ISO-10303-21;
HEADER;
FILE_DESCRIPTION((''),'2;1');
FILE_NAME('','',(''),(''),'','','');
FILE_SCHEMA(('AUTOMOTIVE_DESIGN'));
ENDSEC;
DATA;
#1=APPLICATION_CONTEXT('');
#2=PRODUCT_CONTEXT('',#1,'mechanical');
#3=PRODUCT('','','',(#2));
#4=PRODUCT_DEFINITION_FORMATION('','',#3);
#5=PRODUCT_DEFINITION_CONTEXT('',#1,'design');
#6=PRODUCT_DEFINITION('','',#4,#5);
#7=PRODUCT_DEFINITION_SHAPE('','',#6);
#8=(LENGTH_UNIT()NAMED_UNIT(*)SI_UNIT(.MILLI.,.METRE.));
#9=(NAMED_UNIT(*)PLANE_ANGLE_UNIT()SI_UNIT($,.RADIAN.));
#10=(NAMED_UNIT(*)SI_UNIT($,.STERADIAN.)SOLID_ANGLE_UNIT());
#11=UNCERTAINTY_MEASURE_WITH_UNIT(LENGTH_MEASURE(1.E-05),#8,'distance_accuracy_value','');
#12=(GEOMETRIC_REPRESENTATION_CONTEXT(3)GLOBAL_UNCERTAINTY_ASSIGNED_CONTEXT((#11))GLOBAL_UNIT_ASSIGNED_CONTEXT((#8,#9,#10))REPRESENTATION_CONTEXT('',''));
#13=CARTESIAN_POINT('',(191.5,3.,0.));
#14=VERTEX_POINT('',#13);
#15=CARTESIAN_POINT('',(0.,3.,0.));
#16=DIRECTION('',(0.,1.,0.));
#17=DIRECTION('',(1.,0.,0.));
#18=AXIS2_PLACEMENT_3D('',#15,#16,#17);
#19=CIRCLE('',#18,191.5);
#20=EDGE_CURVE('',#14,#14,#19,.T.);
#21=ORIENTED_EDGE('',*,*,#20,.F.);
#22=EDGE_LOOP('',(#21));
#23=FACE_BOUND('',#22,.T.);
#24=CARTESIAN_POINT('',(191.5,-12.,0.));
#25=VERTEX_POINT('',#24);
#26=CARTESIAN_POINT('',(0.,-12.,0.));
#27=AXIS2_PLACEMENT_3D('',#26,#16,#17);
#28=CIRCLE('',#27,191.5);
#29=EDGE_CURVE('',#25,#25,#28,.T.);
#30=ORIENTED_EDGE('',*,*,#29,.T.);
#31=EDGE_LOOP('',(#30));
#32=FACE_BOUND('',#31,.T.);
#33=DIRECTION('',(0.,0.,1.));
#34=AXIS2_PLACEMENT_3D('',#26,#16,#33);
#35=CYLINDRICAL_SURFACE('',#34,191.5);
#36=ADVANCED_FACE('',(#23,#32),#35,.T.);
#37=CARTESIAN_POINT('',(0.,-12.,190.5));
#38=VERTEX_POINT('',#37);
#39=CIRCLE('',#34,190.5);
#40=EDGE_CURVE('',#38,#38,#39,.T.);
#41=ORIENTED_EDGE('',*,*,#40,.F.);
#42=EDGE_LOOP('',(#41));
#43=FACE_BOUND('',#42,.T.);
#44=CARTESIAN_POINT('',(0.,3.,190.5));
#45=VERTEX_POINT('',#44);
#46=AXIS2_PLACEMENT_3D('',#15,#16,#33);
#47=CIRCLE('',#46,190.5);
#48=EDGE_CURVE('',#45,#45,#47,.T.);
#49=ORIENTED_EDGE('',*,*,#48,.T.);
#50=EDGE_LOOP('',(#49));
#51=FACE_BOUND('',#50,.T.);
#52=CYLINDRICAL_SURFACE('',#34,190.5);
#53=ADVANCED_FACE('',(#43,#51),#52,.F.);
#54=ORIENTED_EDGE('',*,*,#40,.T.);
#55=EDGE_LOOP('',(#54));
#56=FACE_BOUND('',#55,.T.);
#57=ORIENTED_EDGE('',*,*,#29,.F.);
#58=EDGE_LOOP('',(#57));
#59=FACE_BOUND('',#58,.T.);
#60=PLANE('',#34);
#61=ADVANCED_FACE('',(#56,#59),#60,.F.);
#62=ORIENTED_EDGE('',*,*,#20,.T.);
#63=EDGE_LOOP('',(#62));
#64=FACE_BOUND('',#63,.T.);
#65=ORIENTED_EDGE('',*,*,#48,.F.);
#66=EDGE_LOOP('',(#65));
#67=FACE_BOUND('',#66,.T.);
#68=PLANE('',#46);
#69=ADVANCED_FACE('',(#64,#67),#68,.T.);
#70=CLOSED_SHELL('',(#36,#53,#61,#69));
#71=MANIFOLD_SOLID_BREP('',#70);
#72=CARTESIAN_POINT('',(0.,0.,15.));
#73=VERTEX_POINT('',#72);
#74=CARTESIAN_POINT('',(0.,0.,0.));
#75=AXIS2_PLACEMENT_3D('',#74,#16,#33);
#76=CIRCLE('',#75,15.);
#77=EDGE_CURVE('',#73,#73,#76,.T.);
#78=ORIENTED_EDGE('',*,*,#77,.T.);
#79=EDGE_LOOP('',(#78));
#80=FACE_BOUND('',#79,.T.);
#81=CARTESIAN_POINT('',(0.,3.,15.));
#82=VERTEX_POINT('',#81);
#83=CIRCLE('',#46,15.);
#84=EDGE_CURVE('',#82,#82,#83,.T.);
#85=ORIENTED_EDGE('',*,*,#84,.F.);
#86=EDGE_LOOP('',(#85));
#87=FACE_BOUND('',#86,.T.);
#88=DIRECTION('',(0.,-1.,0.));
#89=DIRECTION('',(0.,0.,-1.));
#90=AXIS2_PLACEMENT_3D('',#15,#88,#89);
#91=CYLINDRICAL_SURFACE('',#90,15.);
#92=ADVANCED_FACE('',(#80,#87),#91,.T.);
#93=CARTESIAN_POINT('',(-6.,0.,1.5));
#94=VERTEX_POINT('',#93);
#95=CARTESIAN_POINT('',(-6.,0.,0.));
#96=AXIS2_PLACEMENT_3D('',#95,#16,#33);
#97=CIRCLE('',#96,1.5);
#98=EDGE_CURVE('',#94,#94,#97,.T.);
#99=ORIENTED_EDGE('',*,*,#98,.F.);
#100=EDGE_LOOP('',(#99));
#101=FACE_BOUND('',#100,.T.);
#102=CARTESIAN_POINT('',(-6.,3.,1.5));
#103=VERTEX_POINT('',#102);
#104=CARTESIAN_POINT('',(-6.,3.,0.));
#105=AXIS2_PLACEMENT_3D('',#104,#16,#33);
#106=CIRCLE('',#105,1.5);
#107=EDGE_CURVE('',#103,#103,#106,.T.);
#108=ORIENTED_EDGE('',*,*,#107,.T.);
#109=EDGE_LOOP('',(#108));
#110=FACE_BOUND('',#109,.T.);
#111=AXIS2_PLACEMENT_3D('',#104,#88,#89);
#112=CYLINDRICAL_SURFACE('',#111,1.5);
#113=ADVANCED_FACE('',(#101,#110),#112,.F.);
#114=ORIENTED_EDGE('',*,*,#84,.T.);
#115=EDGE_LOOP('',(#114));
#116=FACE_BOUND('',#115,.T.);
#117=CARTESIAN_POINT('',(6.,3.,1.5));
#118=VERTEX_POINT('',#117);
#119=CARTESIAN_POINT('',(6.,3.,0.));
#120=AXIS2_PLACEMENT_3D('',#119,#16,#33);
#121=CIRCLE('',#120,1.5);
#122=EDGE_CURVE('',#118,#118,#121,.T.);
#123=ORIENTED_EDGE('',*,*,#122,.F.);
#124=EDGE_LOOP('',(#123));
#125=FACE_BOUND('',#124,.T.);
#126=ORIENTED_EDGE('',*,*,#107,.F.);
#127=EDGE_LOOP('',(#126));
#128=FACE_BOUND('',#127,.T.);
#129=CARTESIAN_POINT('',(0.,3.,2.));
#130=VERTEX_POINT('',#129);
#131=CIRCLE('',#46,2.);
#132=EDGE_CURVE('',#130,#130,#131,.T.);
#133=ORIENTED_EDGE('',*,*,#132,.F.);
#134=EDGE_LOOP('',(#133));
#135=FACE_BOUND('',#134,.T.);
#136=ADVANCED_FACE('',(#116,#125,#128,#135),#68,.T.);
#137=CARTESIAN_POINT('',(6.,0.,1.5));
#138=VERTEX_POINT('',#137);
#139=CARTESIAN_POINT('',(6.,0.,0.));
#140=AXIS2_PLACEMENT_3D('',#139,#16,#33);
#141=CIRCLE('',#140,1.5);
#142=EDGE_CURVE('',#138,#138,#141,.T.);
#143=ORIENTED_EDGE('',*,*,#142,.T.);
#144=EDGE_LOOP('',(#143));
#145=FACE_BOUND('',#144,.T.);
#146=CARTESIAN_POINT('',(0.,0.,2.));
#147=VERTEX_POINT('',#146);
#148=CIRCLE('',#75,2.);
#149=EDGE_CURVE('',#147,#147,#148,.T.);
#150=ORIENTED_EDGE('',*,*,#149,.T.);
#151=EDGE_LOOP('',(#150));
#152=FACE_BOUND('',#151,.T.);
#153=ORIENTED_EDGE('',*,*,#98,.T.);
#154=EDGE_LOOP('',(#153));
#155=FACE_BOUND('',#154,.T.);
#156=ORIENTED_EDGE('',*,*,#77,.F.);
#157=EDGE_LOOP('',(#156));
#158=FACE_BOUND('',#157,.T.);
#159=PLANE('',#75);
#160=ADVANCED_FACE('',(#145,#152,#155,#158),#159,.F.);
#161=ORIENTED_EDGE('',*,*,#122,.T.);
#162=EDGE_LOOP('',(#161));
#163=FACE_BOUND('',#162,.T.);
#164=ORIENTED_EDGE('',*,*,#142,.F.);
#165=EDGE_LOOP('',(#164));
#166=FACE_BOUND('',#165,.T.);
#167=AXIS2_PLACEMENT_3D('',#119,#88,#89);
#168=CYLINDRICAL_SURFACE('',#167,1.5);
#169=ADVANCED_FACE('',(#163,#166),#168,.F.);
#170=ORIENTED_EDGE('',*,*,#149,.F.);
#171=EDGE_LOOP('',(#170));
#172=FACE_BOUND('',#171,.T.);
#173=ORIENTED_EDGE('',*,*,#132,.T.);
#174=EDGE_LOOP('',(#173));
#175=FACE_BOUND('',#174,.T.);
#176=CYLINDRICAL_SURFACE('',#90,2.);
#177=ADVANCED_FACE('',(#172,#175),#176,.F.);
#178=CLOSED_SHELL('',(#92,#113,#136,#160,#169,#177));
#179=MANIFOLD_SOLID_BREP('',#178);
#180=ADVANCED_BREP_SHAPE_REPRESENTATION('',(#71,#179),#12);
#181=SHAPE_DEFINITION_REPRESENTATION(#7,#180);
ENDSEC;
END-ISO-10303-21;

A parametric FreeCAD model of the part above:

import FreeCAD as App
import Part
import Sketcher
from FreeCAD import Vector
Q = App.Units.Quantity

doc = App.newDocument("Part")
params = doc.addObject("Spreadsheet::Sheet", "Params")
for row, (alias, value) in enumerate([
    ("sketch1_diameter", "30 mm"),
    ("sketch1_diameter2", "3 mm"),
    ("sketch1_diameter3", "4 mm"),
    ("pad1_length", "3 mm"),
    ("sketch2_diameter", "383 mm"),
    ("sketch2_diameter2", "381 mm"),
    ("pad2_length", "15 mm"),
], start=1):
    params.set(f"A{row}", alias)
    params.set(f"B{row}", "=" + value)
    params.setAlias(f"B{row}", alias)

body = doc.addObject("PartDesign::Body", "Body")

# Sketch on XZ plane
sketch1 = doc.addObject("Sketcher::SketchObject", "Sketch")
body.addObject(sketch1)
sketch1.AttachmentSupport = (doc.XZ_Plane, [""])
sketch1.MapMode = "FlatFace"
sketch1.addGeometry(Part.Circle(Vector(0, 0, 0), Vector(0, 0, 1), 15), False)
sketch1.addGeometry(Part.Circle(Vector(-6, 0, 0), Vector(0, 0, 1), 1.5), False)
sketch1.addGeometry(Part.Circle(Vector(6, 0, 0), Vector(0, 0, 1), 1.5), False)
sketch1.addGeometry(Part.Circle(Vector(0, 0, 0), Vector(0, 0, 1), 2), False)
sketch1.addConstraint(Sketcher.Constraint("Coincident", 0, 3, -1, 1))
sketch1.addConstraint(Sketcher.Constraint("Coincident", 3, 3, -1, 1))
sketch1.addConstraint(Sketcher.Constraint("Equal", 1, 2))
sketch1.addConstraint(Sketcher.Constraint("Symmetric", 1, 3, 2, 3, -1, 1))
sketch1.addConstraint(Sketcher.Constraint("PointOnObject", 1, 3, -1))
sketch1.addConstraint(Sketcher.Constraint("Diameter", 0, Q("30 mm")))
sketch1.addConstraint(Sketcher.Constraint("Diameter", 1, Q("3 mm")))
sketch1.addConstraint(Sketcher.Constraint("Diameter", 3, Q("4 mm")))
sketch1.addConstraint(Sketcher.Constraint("DistanceX", 1, 3, -1, 1, Q("6 mm")))
sketch1.setExpression("Constraints[5]", "Params.sketch1_diameter")
sketch1.setExpression("Constraints[6]", "Params.sketch1_diameter2")
sketch1.setExpression("Constraints[7]", "Params.sketch1_diameter3")
pad1 = doc.addObject("PartDesign::Pad", "Pad")
body.addObject(pad1)
pad1.Profile = sketch1
pad1.setExpression("Length", "Params.pad1_length")
pad1.Reversed = True
body2 = doc.addObject("PartDesign::Body", "Body001")

# Sketch on XZ plane
sketch2 = doc.addObject("Sketcher::SketchObject", "Sketch001")
body2.addObject(sketch2)
sketch2.AttachmentSupport = (doc.getObject("XZ_Plane001"), [""])
sketch2.MapMode = "FlatFace"
sketch2.AttachmentOffset = App.Placement(Vector(0, 0, -3), App.Rotation())
sketch2.addGeometry(Part.Circle(Vector(0, 0, 0), Vector(0, 0, 1), 192), False)
sketch2.addGeometry(Part.Circle(Vector(0, 0, 0), Vector(0, 0, 1), 190), False)
sketch2.addConstraint(Sketcher.Constraint("Coincident", 0, 3, -1, 1))
sketch2.addConstraint(Sketcher.Constraint("Coincident", 1, 3, -1, 1))
sketch2.addConstraint(Sketcher.Constraint("Diameter", 0, Q("383 mm")))
sketch2.addConstraint(Sketcher.Constraint("Diameter", 1, Q("381 mm")))
sketch2.setExpression("Constraints[2]", "Params.sketch2_diameter")
sketch2.setExpression("Constraints[3]", "Params.sketch2_diameter2")
pad2 = doc.addObject("PartDesign::Pad", "Pad001")
body2.addObject(pad2)
pad2.Profile = sketch2
pad2.setExpression("Length", "Params.pad2_length")

doc.recompute()
